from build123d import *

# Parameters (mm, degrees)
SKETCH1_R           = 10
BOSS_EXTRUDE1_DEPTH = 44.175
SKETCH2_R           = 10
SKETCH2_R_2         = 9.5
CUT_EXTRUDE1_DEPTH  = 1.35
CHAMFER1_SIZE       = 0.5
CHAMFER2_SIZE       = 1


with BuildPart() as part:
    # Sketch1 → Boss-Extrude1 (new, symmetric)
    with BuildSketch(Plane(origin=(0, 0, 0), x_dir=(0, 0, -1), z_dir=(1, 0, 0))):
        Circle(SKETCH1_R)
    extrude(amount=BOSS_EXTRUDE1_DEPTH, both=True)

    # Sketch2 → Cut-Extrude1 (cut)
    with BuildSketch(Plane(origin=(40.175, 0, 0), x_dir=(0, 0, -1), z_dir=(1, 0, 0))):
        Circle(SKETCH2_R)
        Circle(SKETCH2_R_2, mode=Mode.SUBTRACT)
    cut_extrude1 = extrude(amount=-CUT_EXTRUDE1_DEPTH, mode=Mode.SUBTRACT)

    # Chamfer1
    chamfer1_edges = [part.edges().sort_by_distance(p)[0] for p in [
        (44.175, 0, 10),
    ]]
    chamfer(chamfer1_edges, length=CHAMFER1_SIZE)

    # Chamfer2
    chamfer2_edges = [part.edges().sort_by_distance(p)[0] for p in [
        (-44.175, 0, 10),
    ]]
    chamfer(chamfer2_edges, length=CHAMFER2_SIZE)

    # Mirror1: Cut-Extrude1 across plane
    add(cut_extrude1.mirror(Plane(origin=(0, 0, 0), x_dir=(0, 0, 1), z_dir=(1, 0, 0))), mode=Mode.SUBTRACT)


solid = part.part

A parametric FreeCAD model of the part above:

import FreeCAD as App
import Part
import Sketcher


def edges_at(feature, points):
    """Names of the edges that pass closest to the given points."""
    edges = feature.Shape.Edges
    near = lambda p: min(range(len(edges)), key=lambda i: edges[i].distToShape(Part.Vertex(*p))[0])
    return sorted({f"Edge{near(p) + 1}" for p in points})

doc = App.newDocument("Part")
params = doc.addObject("Spreadsheet::Sheet", "Params")
for row, (alias, value) in enumerate([
    ("sketch1_diameter", "20 mm"),
    ("pad1_length", "88.35 mm"),
    ("sketch2_diameter", "20 mm"),
    ("sketch2_diameter2", "19 mm"),
    ("pocket1_length", "1.35 mm"),
    ("chamfer_size", "0.5 mm"),
    ("chamfer2_size", "1 mm"),
], start=1):
    params.set(f"A{row}", alias)
    params.set(f"B{row}", "=" + value)
    params.setAlias(f"B{row}", alias)

body = doc.addObject("PartDesign::Body", "Body")

# Sketch on YZ plane
sketch1 = doc.addObject("Sketcher::SketchObject", "Sketch")
body.addObject(sketch1)
sketch1.AttachmentSupport = (doc.YZ_Plane, [""])
sketch1.MapMode = "FlatFace"
sketch1.addGeometry(Part.Circle(App.Vector(0, 0, 0), App.Vector(0, 0, 1), 10), False)
sketch1.addConstraint(Sketcher.Constraint("Coincident", 0, 3, -1, 1))
sketch1.addConstraint(Sketcher.Constraint("Diameter", 0, 20.0))
sketch1.setExpression("Constraints[1]", "Params.sketch1_diameter")
pad1 = doc.addObject("PartDesign::Pad", "Pad")
body.addObject(pad1)
pad1.Profile = sketch1
pad1.setExpression("Length", "Params.pad1_length")
pad1.Midplane = True

# Sketch on YZ plane
sketch2 = doc.addObject("Sketcher::SketchObject", "Sketch001")
body.addObject(sketch2)
sketch2.AttachmentSupport = (doc.YZ_Plane, [""])
sketch2.MapMode = "FlatFace"
sketch2.AttachmentOffset = App.Placement(App.Vector(0, 0, 40.175), App.Rotation())
sketch2.addGeometry(Part.Circle(App.Vector(0, 0, 0), App.Vector(0, 0, 1), 10), False)
sketch2.addGeometry(Part.Circle(App.Vector(0, 0, 0), App.Vector(0, 0, 1), 9.5), False)
sketch2.addConstraint(Sketcher.Constraint("Coincident", 0, 3, -1, 1))
sketch2.addConstraint(Sketcher.Constraint("Coincident", 1, 3, -1, 1))
sketch2.addConstraint(Sketcher.Constraint("Diameter", 0, 20.0))
sketch2.addConstraint(Sketcher.Constraint("Diameter", 1, 19.0))
sketch2.setExpression("Constraints[2]", "Params.sketch2_diameter")
sketch2.setExpression("Constraints[3]", "Params.sketch2_diameter2")
pocket1 = doc.addObject("PartDesign::Pocket", "Pocket")
body.addObject(pocket1)
pocket1.Profile = sketch2
pocket1.setExpression("Length", "Params.pocket1_length")
doc.recompute()

chamfer = doc.addObject("PartDesign::Chamfer", "Chamfer")
body.addObject(chamfer)
chamfer.Base = (pocket1, edges_at(pocket1, [(44.175, 0, 10)]))
chamfer.setExpression("Size", "Params.chamfer_size")
doc.recompute()

chamfer2 = doc.addObject("PartDesign::Chamfer", "Chamfer001")
body.addObject(chamfer2)
chamfer2.Base = (chamfer, edges_at(chamfer, [(-44.175, 0, 10)]))
chamfer2.setExpression("Size", "Params.chamfer2_size")
doc.recompute()

mirrored = doc.addObject("PartDesign::Mirrored", "Mirrored")
body.addObject(mirrored)
mirrored.Originals = [pocket1]
mirrored.MirrorPlane = (doc.YZ_Plane, [""])
body.Tip = mirrored

doc.recompute()
